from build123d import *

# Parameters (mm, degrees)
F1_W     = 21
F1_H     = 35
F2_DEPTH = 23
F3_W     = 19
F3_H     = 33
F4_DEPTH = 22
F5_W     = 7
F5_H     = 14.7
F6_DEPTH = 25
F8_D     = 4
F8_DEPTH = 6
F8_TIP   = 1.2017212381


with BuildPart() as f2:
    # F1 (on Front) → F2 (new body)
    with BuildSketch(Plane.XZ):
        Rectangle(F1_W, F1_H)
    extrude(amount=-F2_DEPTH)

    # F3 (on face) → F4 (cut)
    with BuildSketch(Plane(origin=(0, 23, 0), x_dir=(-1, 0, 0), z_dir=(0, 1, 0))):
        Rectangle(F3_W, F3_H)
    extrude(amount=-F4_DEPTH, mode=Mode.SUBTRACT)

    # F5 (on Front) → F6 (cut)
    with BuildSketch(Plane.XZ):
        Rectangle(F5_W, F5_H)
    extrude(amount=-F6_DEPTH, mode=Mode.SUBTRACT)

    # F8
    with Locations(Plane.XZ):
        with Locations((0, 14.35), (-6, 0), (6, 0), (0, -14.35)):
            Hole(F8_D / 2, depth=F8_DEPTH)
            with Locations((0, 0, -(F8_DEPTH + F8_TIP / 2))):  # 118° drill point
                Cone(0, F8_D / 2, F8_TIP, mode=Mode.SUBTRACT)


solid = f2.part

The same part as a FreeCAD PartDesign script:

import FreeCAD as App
import Part
import Sketcher
from FreeCAD import Vector
Q = App.Units.Quantity

doc = App.newDocument("Part")
body = doc.addObject("PartDesign::Body", "Body")

# Sketch on XZ plane
sketch1 = body.newObject("Sketcher::SketchObject", "Sketch")
sketch1.AttachmentSupport = (doc.getObject("XZ_Plane"), [""])
sketch1.MapMode = "FlatFace"
sketch1.addGeometry([
    Part.LineSegment(Vector(-10, 18, 0), Vector(-10, -18, 0)),
    Part.LineSegment(Vector(-10, -18, 0), Vector(10, -18, 0)),
    Part.LineSegment(Vector(10, -18, 0), Vector(10, 18, 0)),
    Part.LineSegment(Vector(10, 18, 0), Vector(-10, 18, 0)),
], False)
sketch1.addConstraint([
    Sketcher.Constraint("Coincident", 0, 2, 1, 1),
    Sketcher.Constraint("Coincident", 1, 2, 2, 1),
    Sketcher.Constraint("Coincident", 2, 2, 3, 1),
    Sketcher.Constraint("Coincident", 3, 2, 0, 1),
    Sketcher.Constraint("Vertical", 0),
    Sketcher.Constraint("Horizontal", 1),
    Sketcher.Constraint("Vertical", 2),
    Sketcher.Constraint("Horizontal", 3),
    Sketcher.Constraint("Symmetric", 0, 2, 2, 2, -1, 1),
    Sketcher.Constraint("DistanceX", 1, 1, 1, 2, Q("21 mm")),
    Sketcher.Constraint("DistanceY", 0, 2, 0, 1, Q("35 mm")),
])
pad1 = body.newObject("PartDesign::Pad", "Pad")
pad1.Profile = sketch1
pad1.Length = 23
pad1.Reversed = True

# Sketch on XZ plane
sketch2 = body.newObject("Sketcher::SketchObject", "Sketch001")
sketch2.AttachmentSupport = (doc.getObject("XZ_Plane"), [""])
sketch2.MapMode = "FlatFace"
sketch2.AttachmentOffset = App.Placement(Vector(0, 0, -23), App.Rotation())
sketch2.addGeometry([
    Part.LineSegment(Vector(10, 16, 0), Vector(10, -16, 0)),
    Part.LineSegment(Vector(10, -16, 0), Vector(-10, -16, 0)),
    Part.LineSegment(Vector(-10, -16, 0), Vector(-10, 16, 0)),
    Part.LineSegment(Vector(-10, 16, 0), Vector(10, 16, 0)),
], False)
sketch2.addConstraint([
    Sketcher.Constraint("Coincident", 0, 2, 1, 1),
    Sketcher.Constraint("Coincident", 1, 2, 2, 1),
    Sketcher.Constraint("Coincident", 2, 2, 3, 1),
    Sketcher.Constraint("Coincident", 3, 2, 0, 1),
    Sketcher.Constraint("Vertical", 0),
    Sketcher.Constraint("Horizontal", 1),
    Sketcher.Constraint("Vertical", 2),
    Sketcher.Constraint("Horizontal", 3),
    Sketcher.Constraint("Symmetric", 0, 2, 2, 2, -1, 1),
    Sketcher.Constraint("DistanceX", 1, 2, 1, 1, Q("19 mm")),
    Sketcher.Constraint("DistanceY", 0, 2, 0, 1, Q("33 mm")),
])
pocket1 = body.newObject("PartDesign::Pocket", "Pocket")
pocket1.Profile = sketch2
pocket1.Length = 22
pocket1.Reversed = True

# Sketch on XZ plane
sketch3 = body.newObject("Sketcher::SketchObject", "Sketch002")
sketch3.AttachmentSupport = (doc.getObject("XZ_Plane"), [""])
sketch3.MapMode = "FlatFace"
sketch3.addGeometry([
    Part.LineSegment(Vector(-4, 7, 0), Vector(-4, -7, 0)),
    Part.LineSegment(Vector(-4, -7, 0), Vector(4, -7, 0)),
    Part.LineSegment(Vector(4, -7, 0), Vector(4, 7, 0)),
    Part.LineSegment(Vector(4, 7, 0), Vector(-4, 7, 0)),
], False)
sketch3.addConstraint([
    Sketcher.Constraint("Coincident", 0, 2, 1, 1),
    Sketcher.Constraint("Coincident", 1, 2, 2, 1),
    Sketcher.Constraint("Coincident", 2, 2, 3, 1),
    Sketcher.Constraint("Coincident", 3, 2, 0, 1),
    Sketcher.Constraint("Vertical", 0),
    Sketcher.Constraint("Horizontal", 1),
    Sketcher.Constraint("Vertical", 2),
    Sketcher.Constraint("Horizontal", 3),
    Sketcher.Constraint("Symmetric", 0, 2, 2, 2, -1, 1),
    Sketcher.Constraint("DistanceX", 1, 1, 1, 2, Q("7 mm")),
    Sketcher.Constraint("DistanceY", 0, 2, 0, 1, Q("14.7 mm")),
])
pocket2 = body.newObject("PartDesign::Pocket", "Pocket001")
pocket2.Profile = sketch3
pocket2.Length = 25

# Sketch on XZ plane
sketch4 = body.newObject("Sketcher::SketchObject", "Sketch003")
sketch4.AttachmentSupport = (doc.getObject("XZ_Plane"), [""])
sketch4.MapMode = "FlatFace"
sketch4.addGeometry([
    Part.Circle(Vector(0, 14.3, 0), Vector(0, 0, 1), 2),
    Part.Circle(Vector(-6, 0, 0), Vector(0, 0, 1), 2),
    Part.Circle(Vector(6, 0, 0), Vector(0, 0, 1), 2),
    Part.Circle(Vector(0, -14.3, 0), Vector(0, 0, 1), 2),
], False)
sketch4.addConstraint([
    Sketcher.Constraint("Equal", 0, 1),
    Sketcher.Constraint("Equal", 1, 2),
    Sketcher.Constraint("Equal", 2, 3),
    Sketcher.Constraint("Symmetric", 1, 3, 2, 3, -1, 1),
    Sketcher.Constraint("Symmetric", 0, 3, 3, 3, -1, 1),
    Sketcher.Constraint("PointOnObject", 0, 3, -2),
    Sketcher.Constraint("PointOnObject", 1, 3, -1),
    Sketcher.Constraint("Diameter", 0, Q("4 mm")),
    Sketcher.Constraint("DistanceX", 1, 3, -1, 1, Q("6 mm")),
    Sketcher.Constraint("DistanceY", 3, 3, 0, 3, Q("28.7 mm")),
])
doc.recompute()
hole = body.newObject("PartDesign::Hole", "Hole")
hole.Profile = sketch4
hole.ThreadType = "None"
hole.Diameter = 4
hole.DepthType = "Dimension"
hole.Depth = 6
hole.DrillPoint = "Angled"
hole.DrillPointAngle = 118

doc.recompute()
